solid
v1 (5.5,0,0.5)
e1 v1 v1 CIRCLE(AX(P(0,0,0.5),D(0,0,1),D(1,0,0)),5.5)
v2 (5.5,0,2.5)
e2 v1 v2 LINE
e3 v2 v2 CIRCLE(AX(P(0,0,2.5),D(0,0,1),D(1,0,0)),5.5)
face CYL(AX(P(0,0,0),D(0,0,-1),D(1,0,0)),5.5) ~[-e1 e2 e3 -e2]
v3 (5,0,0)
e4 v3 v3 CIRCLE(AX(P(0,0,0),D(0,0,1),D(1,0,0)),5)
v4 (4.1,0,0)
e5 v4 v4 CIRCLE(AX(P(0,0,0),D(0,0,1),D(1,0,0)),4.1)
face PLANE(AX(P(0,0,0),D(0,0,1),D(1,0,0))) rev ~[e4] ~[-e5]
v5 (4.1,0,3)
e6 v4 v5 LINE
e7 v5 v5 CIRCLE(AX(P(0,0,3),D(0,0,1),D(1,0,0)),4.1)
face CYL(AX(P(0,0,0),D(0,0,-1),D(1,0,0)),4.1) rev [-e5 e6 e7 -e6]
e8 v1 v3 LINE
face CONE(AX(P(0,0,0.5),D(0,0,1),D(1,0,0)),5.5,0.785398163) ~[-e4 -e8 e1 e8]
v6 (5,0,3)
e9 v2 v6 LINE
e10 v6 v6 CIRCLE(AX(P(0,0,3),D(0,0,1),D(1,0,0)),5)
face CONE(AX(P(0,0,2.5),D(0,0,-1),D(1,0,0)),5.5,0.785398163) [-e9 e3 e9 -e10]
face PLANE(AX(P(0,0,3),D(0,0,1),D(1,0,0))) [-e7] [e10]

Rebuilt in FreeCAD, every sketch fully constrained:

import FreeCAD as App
import Part
import Sketcher
Q = App.Units.Quantity


def edges_at(feature, points):
    """Names of the edges that pass closest to the given points."""
    edges = feature.Shape.Edges
    near = lambda p: min(range(len(edges)), key=lambda i: edges[i].distToShape(Part.Vertex(*p))[0])
    return sorted({f"Edge{near(p) + 1}" for p in points})

doc = App.newDocument("Part")
params = doc.addObject("Spreadsheet::Sheet", "Params")
for row, (alias, value) in enumerate([
    ("sketch1_diameter", "11 mm"),
    ("sketch1_diameter2", "8.2 mm"),
    ("pad1_length", "3 mm"),
    ("chamfer_size", "0.5 mm"),
], start=1):
    params.set(f"A{row}", alias)
    params.set(f"B{row}", "=" + value)
    params.setAlias(f"B{row}", alias)

body = doc.addObject("PartDesign::Body", "Body")

# Sketch on XY plane
sketch1 = body.newObject("Sketcher::SketchObject", "Sketch")
sketch1.AttachmentSupport = (doc.getObject("XY_Plane"), [""])
sketch1.MapMode = "FlatFace"
sketch1.addGeometry(Part.Circle(App.Vector(0, 0, 0), App.Vector(0, 0, 1), 5.5), False)
sketch1.addGeometry(Part.Circle(App.Vector(0, 0, 0), App.Vector(0, 0, 1), 4.1), False)
sketch1.addConstraint(Sketcher.Constraint("Coincident", 0, 3, -1, 1))
sketch1.addConstraint(Sketcher.Constraint("Coincident", 1, 3, -1, 1))
sketch1.addConstraint(Sketcher.Constraint("Diameter", 0, Q("11 mm")))
sketch1.addConstraint(Sketcher.Constraint("Diameter", 1, Q("8.2 mm")))
sketch1.setExpression("Constraints[2]", "Params.sketch1_diameter")
sketch1.setExpression("Constraints[3]", "Params.sketch1_diameter2")
pad1 = body.newObject("PartDesign::Pad", "Pad")
pad1.Profile = sketch1
pad1.setExpression("Length", "Params.pad1_length")
doc.recompute()

chamfer = body.newObject("PartDesign::Chamfer", "Chamfer")
chamfer.Base = (pad1, edges_at(pad1, [(-5.5, 0, 3), (-5.5, 0, 0)]))
chamfer.setExpression("Size", "Params.chamfer_size")

doc.recompute()
